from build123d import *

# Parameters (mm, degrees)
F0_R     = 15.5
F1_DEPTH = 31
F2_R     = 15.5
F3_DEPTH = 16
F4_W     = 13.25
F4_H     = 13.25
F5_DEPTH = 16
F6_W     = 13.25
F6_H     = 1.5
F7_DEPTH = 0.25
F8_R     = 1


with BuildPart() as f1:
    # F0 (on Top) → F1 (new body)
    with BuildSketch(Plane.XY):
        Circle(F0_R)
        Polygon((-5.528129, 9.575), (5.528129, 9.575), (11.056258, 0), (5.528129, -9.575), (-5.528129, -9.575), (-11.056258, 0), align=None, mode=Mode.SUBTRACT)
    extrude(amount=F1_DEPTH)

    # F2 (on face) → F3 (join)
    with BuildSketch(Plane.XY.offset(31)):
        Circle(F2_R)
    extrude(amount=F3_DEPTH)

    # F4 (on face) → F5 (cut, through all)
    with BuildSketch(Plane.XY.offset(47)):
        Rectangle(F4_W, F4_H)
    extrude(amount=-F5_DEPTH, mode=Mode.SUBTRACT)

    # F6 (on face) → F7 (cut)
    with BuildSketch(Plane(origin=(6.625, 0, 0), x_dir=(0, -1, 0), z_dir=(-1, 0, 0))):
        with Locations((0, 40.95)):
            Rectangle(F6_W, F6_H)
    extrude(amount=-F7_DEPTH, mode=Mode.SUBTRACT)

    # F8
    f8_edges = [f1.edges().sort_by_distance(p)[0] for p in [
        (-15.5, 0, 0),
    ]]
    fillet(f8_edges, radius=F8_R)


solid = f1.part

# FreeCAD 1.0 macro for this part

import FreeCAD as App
import Part
import Sketcher
from FreeCAD import Vector
Q = App.Units.Quantity


def edges_at(feature, points):
    """Names of the edges that pass closest to the given points."""
    edges = feature.Shape.Edges
    near = lambda p: min(range(len(edges)), key=lambda i: edges[i].distToShape(Part.Vertex(*p))[0])
    return sorted({f"Edge{near(p) + 1}" for p in points})


def add_polygon(sketch, points):
    """Adds a closed chain of lines whose ends are joined by coincident constraints."""
    first, n = sketch.GeometryCount, len(points)
    for a, b in zip(points, points[1:] + points[:1]):
        sketch.addGeometry(Part.LineSegment(App.Vector(*a, 0), App.Vector(*b, 0)), False)
    for i in range(n):
        sketch.addConstraint(Sketcher.Constraint("Coincident", first + i, 2, first + (i + 1) % n, 1))

doc = App.newDocument("Part")
params = doc.addObject("Spreadsheet::Sheet", "Params")
for row, (alias, value) in enumerate([
    ("sketch1_diameter", "31 mm"),
    ("pad1_length", "31 mm"),
    ("sketch2_diameter", "31 mm"),
    ("pad2_length", "16 mm"),
    ("sketch3_width", "13.25 mm"),
    ("sketch4_height", "1.5 mm"),
    ("sketch4_width", "13.25 mm"),
    ("pocket2_length", "0.25 mm"),
    ("fillet_radius", "1 mm"),
], start=1):
    params.set(f"A{row}", alias)
    params.set(f"B{row}", "=" + value)
    params.setAlias(f"B{row}", alias)

body = doc.addObject("PartDesign::Body", "Body")

# Sketch on XY plane
sketch1 = body.newObject("Sketcher::SketchObject", "Sketch")
sketch1.AttachmentSupport = (doc.getObject("XY_Plane"), [""])
sketch1.MapMode = "FlatFace"
sketch1.addGeometry(Part.Circle(Vector(0, 0, 0), Vector(0, 0, 1), 16), False)  # 0
add_polygon(sketch1, [(-11, 0), (-6, 10), (6, 10), (11, 0), (6, -10), (-6, -10)])  # lines 1-6
sketch1.addConstraint(Sketcher.Constraint("Horizontal", 2))
sketch1.addConstraint(Sketcher.Constraint("Horizontal", 5))
sketch1.addConstraint(Sketcher.Constraint("Coincident", 0, 3, -1, 1))
sketch1.addConstraint(Sketcher.Constraint("Symmetric", 1, 2, 4, 2, -1, 1))
sketch1.addConstraint(Sketcher.Constraint("Symmetric", 3, 2, 6, 2, -1, 1))
sketch1.addConstraint(Sketcher.Constraint("PointOnObject", 3, 2, -1))
sketch1.addConstraint(Sketcher.Constraint("Parallel", 3, 6))
sketch1.addConstraint(Sketcher.Constraint("Vertical", 2, 2, 4, 2))
sketch1.addConstraint(Sketcher.Constraint("Diameter", 0, Q("31 mm")))
sketch1.addConstraint(Sketcher.Constraint("Angle", 1, Q("59.999999 deg")))
sketch1.addConstraint(Sketcher.Constraint("DistanceY", 4, 2, 2, 2, Q("19.15 mm")))
sketch1.addConstraint(Sketcher.Constraint("DistanceX", 2, 1, 2, 2, Q("11.056258 mm")))
sketch1.setExpression("Constraints[14]", "Params.sketch1_diameter")
pad1 = body.newObject("PartDesign::Pad", "Pad")
pad1.Profile = sketch1
pad1.setExpression("Length", "Params.pad1_length")

# Sketch on XY plane
sketch2 = body.newObject("Sketcher::SketchObject", "Sketch001")
sketch2.AttachmentSupport = (doc.getObject("XY_Plane"), [""])
sketch2.MapMode = "FlatFace"
sketch2.AttachmentOffset = App.Placement(Vector(0, 0, 31), App.Rotation())
sketch2.addGeometry(Part.Circle(Vector(0, 0, 0), Vector(0, 0, 1), 16), False)
sketch2.addConstraint(Sketcher.Constraint("Coincident", 0, 3, -1, 1))
sketch2.addConstraint(Sketcher.Constraint("Diameter", 0, Q("31 mm")))
sketch2.setExpression("Constraints[1]", "Params.sketch2_diameter")
pad2 = body.newObject("PartDesign::Pad", "Pad001")
pad2.Profile = sketch2
pad2.setExpression("Length", "Params.pad2_length")

# Sketch on XY plane
sketch3 = body.newObject("Sketcher::SketchObject", "Sketch002")
sketch3.AttachmentSupport = (doc.getObject("XY_Plane"), [""])
sketch3.MapMode = "FlatFace"
sketch3.AttachmentOffset = App.Placement(Vector(0, 0, 47), App.Rotation())
add_polygon(sketch3, [(-7, 7), (-7, -7), (7, -7), (7, 7)])  # lines 0-3
sketch3.addConstraint(Sketcher.Constraint("Vertical", 0))
sketch3.addConstraint(Sketcher.Constraint("Horizontal", 1))
sketch3.addConstraint(Sketcher.Constraint("Vertical", 2))
sketch3.addConstraint(Sketcher.Constraint("Horizontal", 3))
sketch3.addConstraint(Sketcher.Constraint("Symmetric", 0, 2, 2, 2, -1, 1))
sketch3.addConstraint(Sketcher.Constraint("Equal", 3, 0))
sketch3.addConstraint(Sketcher.Constraint("DistanceX", 1, 1, 1, 2, Q("13.25 mm")))
sketch3.setExpression("Constraints[10]", "Params.sketch3_width")
pocket1 = body.newObject("PartDesign::Pocket", "Pocket")
pocket1.Profile = sketch3
pocket1.Type = "ThroughAll"

# Sketch on YZ plane
sketch4 = body.newObject("Sketcher::SketchObject", "Sketch003")
sketch4.AttachmentSupport = (doc.getObject("YZ_Plane"), [""])
sketch4.MapMode = "FlatFace"
sketch4.AttachmentOffset = App.Placement(Vector(0, 0, 6.625), App.Rotation())
add_polygon(sketch4, [(6.6, 41.7), (6.6, 40.2), (-6.6, 40.2), (-6.6, 41.7)])  # lines 0-3
sketch4.addConstraint(Sketcher.Constraint("Vertical", 0))
sketch4.addConstraint(Sketcher.Constraint("Horizontal", 1))
sketch4.addConstraint(Sketcher.Constraint("Vertical", 2))
sketch4.addConstraint(Sketcher.Constraint("Horizontal", 3))
sketch4.addConstraint(Sketcher.Constraint("DistanceY", 0, 2, 0, 1, Q("1.5 mm")))
sketch4.addConstraint(Sketcher.Constraint("DistanceX", 1, 2, 1, 1, Q("13.25 mm")))
sketch4.addConstraint(Sketcher.Constraint("DistanceY", -1, 1, 0, 2, Q("40.2 mm")))
sketch4.addConstraint(Sketcher.Constraint("DistanceX", -1, 1, 0, 2, Q("6.625 mm")))
sketch4.setExpression("Constraints[8]", "Params.sketch4_height")
sketch4.setExpression("Constraints[9]", "Params.sketch4_width")
pocket2 = body.newObject("PartDesign::Pocket", "Pocket001")
pocket2.Profile = sketch4
pocket2.setExpression("Length", "Params.pocket2_length")
pocket2.Reversed = True
doc.recompute()

fillet = body.newObject("PartDesign::Fillet", "Fillet")
fillet.Base = (pocket2, edges_at(pocket2, [(-15.5, 0, 0)]))
fillet.setExpression("Radius", "Params.fillet_radius")

doc.recompute()
